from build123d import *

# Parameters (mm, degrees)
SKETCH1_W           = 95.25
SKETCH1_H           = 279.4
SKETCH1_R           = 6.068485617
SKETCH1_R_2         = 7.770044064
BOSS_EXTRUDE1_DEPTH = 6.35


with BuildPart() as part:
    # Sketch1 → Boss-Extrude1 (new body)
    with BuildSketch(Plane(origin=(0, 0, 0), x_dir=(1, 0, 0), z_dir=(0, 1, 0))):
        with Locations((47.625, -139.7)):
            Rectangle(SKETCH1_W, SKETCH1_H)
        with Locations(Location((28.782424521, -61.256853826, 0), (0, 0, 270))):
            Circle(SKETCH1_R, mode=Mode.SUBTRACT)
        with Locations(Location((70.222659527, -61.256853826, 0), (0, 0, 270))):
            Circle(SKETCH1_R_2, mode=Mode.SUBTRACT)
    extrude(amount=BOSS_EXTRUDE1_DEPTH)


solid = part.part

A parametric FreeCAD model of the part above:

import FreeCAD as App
import Part
import Sketcher
from FreeCAD import Vector
Q = App.Units.Quantity


def add_polygon(sketch, points):
    """Adds a closed chain of lines whose ends are joined by coincident constraints."""
    first, n = sketch.GeometryCount, len(points)
    for a, b in zip(points, points[1:] + points[:1]):
        sketch.addGeometry(Part.LineSegment(App.Vector(*a, 0), App.Vector(*b, 0)), False)
    for i in range(n):
        sketch.addConstraint(Sketcher.Constraint("Coincident", first + i, 2, first + (i + 1) % n, 1))

doc = App.newDocument("Part")
body = doc.addObject("PartDesign::Body", "Body")

sketch1 = body.newObject("Sketcher::SketchObject", "Sketch")
sketch1.AttachmentSupport = (doc.getObject("XZ_Plane"), [""])
sketch1.MapMode = "FlatFace"
add_polygon(sketch1, [(0, 0), (0, 279), (95, 279), (95, 0)])
sketch1.addGeometry(Part.Circle(Vector(29, 61, 0), Vector(0, 0, 1), 6), False)
sketch1.addGeometry(Part.Circle(Vector(70, 61, 0), Vector(0, 0, 1), 8), False)
sketch1.addConstraint([
    Sketcher.Constraint("Vertical", 0),
    Sketcher.Constraint("Horizontal", 1),
    Sketcher.Constraint("Vertical", 2),
    Sketcher.Constraint("Horizontal", 3),
    Sketcher.Constraint("Coincident", 3, 2, -1, 1),
    Sketcher.Constraint("Horizontal", 4, 3, 5, 3),
    Sketcher.Constraint("DistanceY", 0, 1, 0, 2, Q("11 in")),
    Sketcher.Constraint("DistanceX", 1, 1, 1, 2, Q("3.75 in")),
    Sketcher.Constraint("Diameter", 4, 12.136971),
    Sketcher.Constraint("Diameter", 5, 15.540088),
    Sketcher.Constraint("DistanceX", -1, 1, 5, 3, 70.22266),
    Sketcher.Constraint("DistanceX", -1, 1, 4, 3, 28.782425),
    Sketcher.Constraint("DistanceY", -1, 1, 4, 3, 61.256854),
])
pad1 = body.newObject("PartDesign::Pad", "Pad")
pad1.Profile = sketch1
pad1.Length = Q("0.25 in")
pad1.Reversed = True

doc.recompute()
